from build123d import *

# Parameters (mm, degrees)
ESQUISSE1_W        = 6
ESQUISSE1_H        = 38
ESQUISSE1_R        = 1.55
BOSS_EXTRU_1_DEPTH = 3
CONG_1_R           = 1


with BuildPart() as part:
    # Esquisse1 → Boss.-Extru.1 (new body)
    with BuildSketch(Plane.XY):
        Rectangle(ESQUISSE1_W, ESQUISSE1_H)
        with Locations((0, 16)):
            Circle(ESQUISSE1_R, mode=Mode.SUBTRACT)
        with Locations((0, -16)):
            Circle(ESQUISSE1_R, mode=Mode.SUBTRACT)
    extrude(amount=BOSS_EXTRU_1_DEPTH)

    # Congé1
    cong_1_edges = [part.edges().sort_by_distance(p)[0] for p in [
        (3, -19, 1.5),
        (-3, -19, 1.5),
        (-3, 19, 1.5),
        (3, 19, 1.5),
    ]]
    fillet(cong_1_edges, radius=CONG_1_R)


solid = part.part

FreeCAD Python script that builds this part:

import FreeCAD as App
import Part
import Sketcher

V = App.Vector
Q = App.Units.Quantity


def edges_at(feature, points):
    """Names of the edges that pass closest to the given points."""
    edges = feature.Shape.Edges
    near = lambda p: min(range(len(edges)), key=lambda i: edges[i].distToShape(Part.Vertex(*p))[0])
    return sorted({f"Edge{near(p) + 1}" for p in points})

doc = App.newDocument("Part")
body = doc.addObject("PartDesign::Body", "Body")

# Sketch on XY plane
sketch1 = body.newObject("Sketcher::SketchObject", "Sketch")
sketch1.AttachmentSupport = (doc.getObject("XY_Plane"), [""])
sketch1.MapMode = "FlatFace"
sketch1.addGeometry([
    Part.LineSegment(V(-3, 19, 0), V(-3, -19, 0)),  # 0
    Part.LineSegment(V(-3, -19, 0), V(3, -19, 0)),  # 1
    Part.LineSegment(V(3, -19, 0), V(3, 19, 0)),  # 2
    Part.LineSegment(V(3, 19, 0), V(-3, 19, 0)),  # 3
    Part.Circle(V(0, -16, 0), V(0, 0, 1), 1.6),  # 4
    Part.Circle(V(0, 16, 0), V(0, 0, 1), 1.6),  # 5
], False)
sketch1.addConstraint([
    Sketcher.Constraint("Coincident", 0, 2, 1, 1),
    Sketcher.Constraint("Coincident", 1, 2, 2, 1),
    Sketcher.Constraint("Coincident", 2, 2, 3, 1),
    Sketcher.Constraint("Coincident", 3, 2, 0, 1),
    Sketcher.Constraint("Vertical", 0),
    Sketcher.Constraint("Horizontal", 1),
    Sketcher.Constraint("Vertical", 2),
    Sketcher.Constraint("Horizontal", 3),
    Sketcher.Constraint("Equal", 4, 5),
    Sketcher.Constraint("Symmetric", 4, 3, 5, 3, -1, 1),
    Sketcher.Constraint("Symmetric", 0, 2, 2, 2, -1, 1),
    Sketcher.Constraint("PointOnObject", 4, 3, -2),
    Sketcher.Constraint("Diameter", 4, Q("3.1 mm")),
    Sketcher.Constraint("DistanceX", 1, 1, 1, 2, Q("6 mm")),
    Sketcher.Constraint("DistanceY", 0, 2, 0, 1, Q("38 mm")),
    Sketcher.Constraint("DistanceY", 4, 3, -1, 1, Q("16 mm")),
])
pad1 = body.newObject("PartDesign::Pad", "Pad")
pad1.Profile = sketch1
pad1.Length = 3
doc.recompute()

fillet = body.newObject("PartDesign::Fillet", "Fillet")
fillet.Base = (pad1, edges_at(pad1, [
    (3, -19, 1.5),
    (-3, -19, 1.5),
    (-3, 19, 1.5),
    (3, 19, 1.5),
]))
fillet.Radius = 1

doc.recompute()
